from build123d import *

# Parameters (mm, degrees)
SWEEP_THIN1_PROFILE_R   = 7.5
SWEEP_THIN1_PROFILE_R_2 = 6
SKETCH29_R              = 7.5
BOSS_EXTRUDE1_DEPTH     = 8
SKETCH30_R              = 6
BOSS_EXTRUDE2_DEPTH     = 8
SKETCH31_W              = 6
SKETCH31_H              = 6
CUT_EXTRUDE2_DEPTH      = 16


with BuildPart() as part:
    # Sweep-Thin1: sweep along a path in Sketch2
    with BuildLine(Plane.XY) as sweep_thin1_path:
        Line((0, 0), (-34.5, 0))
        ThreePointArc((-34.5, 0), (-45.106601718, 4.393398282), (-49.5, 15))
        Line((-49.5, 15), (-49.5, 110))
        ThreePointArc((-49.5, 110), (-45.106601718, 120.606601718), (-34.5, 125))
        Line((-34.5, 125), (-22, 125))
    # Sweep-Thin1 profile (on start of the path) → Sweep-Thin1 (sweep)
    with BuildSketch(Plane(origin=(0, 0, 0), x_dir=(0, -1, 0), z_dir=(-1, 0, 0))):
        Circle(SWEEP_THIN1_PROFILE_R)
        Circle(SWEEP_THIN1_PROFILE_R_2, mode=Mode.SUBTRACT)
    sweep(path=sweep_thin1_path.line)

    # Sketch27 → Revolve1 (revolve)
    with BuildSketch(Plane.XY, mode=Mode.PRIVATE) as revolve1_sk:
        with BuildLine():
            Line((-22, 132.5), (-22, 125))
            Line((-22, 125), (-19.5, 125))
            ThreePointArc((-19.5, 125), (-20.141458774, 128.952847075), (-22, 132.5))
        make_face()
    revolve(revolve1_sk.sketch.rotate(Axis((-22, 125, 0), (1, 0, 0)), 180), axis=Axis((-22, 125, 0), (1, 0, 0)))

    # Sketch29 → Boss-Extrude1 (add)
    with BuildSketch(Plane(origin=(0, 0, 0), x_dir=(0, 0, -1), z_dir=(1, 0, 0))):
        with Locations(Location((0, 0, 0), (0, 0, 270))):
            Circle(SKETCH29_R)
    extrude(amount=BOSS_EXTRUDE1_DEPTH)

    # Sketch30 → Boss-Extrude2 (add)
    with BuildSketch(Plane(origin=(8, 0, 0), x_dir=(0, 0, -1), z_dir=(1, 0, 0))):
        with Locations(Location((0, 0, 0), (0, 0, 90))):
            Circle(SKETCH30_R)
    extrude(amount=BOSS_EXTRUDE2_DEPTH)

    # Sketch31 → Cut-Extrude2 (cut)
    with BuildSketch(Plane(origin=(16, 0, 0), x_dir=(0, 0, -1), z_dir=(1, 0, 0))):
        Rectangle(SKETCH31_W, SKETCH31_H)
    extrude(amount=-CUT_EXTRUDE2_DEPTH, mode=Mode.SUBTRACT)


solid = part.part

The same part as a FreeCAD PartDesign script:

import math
import FreeCAD as App
import Part
import Sketcher

V = App.Vector

doc = App.newDocument("Part")
body = doc.addObject("PartDesign::Body", "Body")

sketch1 = doc.addObject("Sketcher::SketchObject", "Sketch")
body.addObject(sketch1)
sketch1.AttachmentSupport = (doc.YZ_Plane, [""])
sketch1.MapMode = "FlatFace"
sketch1.addGeometry(Part.Circle(V(0, 0, 0), V(0, 0, 1), 8), False)
sketch1.addGeometry(Part.Circle(V(0, 0, 0), V(0, 0, 1), 6), False)
sketch1.addConstraint(Sketcher.Constraint("Coincident", 0, 3, -1, 1))
sketch1.addConstraint(Sketcher.Constraint("Coincident", 1, 3, -1, 1))
sketch1.addConstraint(Sketcher.Constraint("Diameter", 0, 15.0))
sketch1.addConstraint(Sketcher.Constraint("Diameter", 1, 12.0))

sketch2 = doc.addObject("Sketcher::SketchObject", "Sketch001")
body.addObject(sketch2)
sketch2.AttachmentSupport = (doc.XY_Plane, [""])
sketch2.MapMode = "FlatFace"
sketch2.addGeometry(Part.LineSegment(V(0, 0, 0), V(-34, 0, 0)), False)
sketch2.addGeometry(Part.ArcOfCircle(Part.Circle(V(-35, 15, 0), V(0, 0, 1), 15), math.radians(180), math.radians(270)), False)
sketch2.addGeometry(Part.LineSegment(V(-50, 15, 0), V(-50, 110, 0)), False)
sketch2.addGeometry(Part.ArcOfCircle(Part.Circle(V(-35, 110, 0), V(0, 0, 1), 15), math.radians(90), math.radians(180)), False)
sketch2.addGeometry(Part.LineSegment(V(-34, 125, 0), V(-22, 125, 0)), False)
sketch2.addConstraint(Sketcher.Constraint("Tangent", 0, 2, 1, 2))
sketch2.addConstraint(Sketcher.Constraint("Tangent", 1, 1, 2, 1))
sketch2.addConstraint(Sketcher.Constraint("Tangent", 2, 2, 3, 2))
sketch2.addConstraint(Sketcher.Constraint("Tangent", 3, 1, 4, 1))
sketch2.addConstraint(Sketcher.Constraint("Horizontal", 0))
sketch2.addConstraint(Sketcher.Constraint("Vertical", 2))
sketch2.addConstraint(Sketcher.Constraint("Horizontal", 4))
sketch2.addConstraint(Sketcher.Constraint("Coincident", 0, 1, -1, 1))
sketch2.addConstraint(Sketcher.Constraint("Equal", 1, 3))
sketch2.addConstraint(Sketcher.Constraint("Radius", 1, 15.0))
sketch2.addConstraint(Sketcher.Constraint("DistanceY", 2, 1, 2, 2, 95.0))
sketch2.addConstraint(Sketcher.Constraint("DistanceX", 0, 2, 0, 1, 34.5))
sketch2.addConstraint(Sketcher.Constraint("DistanceX", 4, 1, 4, 2, 12.5))
doc.recompute()

additivepipe = doc.addObject("PartDesign::AdditivePipe", "AdditivePipe")
body.addObject(additivepipe)
additivepipe.Profile = sketch1
additivepipe.Spine = (sketch2, ["Edge1", "Edge2", "Edge3", "Edge4", "Edge5"])

sketch3 = doc.addObject("Sketcher::SketchObject", "Sketch002")
body.addObject(sketch3)
sketch3.AttachmentSupport = (doc.XY_Plane, [""])
sketch3.MapMode = "FlatFace"
sketch3.addGeometry(Part.LineSegment(V(-22, 132.5, 0), V(-22, 125, 0)), False)
sketch3.addGeometry(Part.LineSegment(V(-22, 125, 0), V(-19.5, 125, 0)), False)
sketch3.addGeometry(Part.ArcOfCircle(Part.Circle(V(-32, 125, 0), V(0, 0, 1), 12.5), math.radians(0), math.radians(37)), False)
sketch3.addGeometry(Part.LineSegment(V(-32, 125, 0), V(-19.5, 125, 0)), True)
sketch3.addConstraint(Sketcher.Constraint("Coincident", 0, 2, 1, 1))
sketch3.addConstraint(Sketcher.Constraint("Coincident", 1, 2, 2, 1))
sketch3.addConstraint(Sketcher.Constraint("Coincident", 2, 2, 0, 1))
sketch3.addConstraint(Sketcher.Constraint("Vertical", 0))
sketch3.addConstraint(Sketcher.Constraint("Horizontal", 1))
sketch3.addConstraint(Sketcher.Constraint("Horizontal", 3))
sketch3.addConstraint(Sketcher.Constraint("Coincident", 3, 1, 2, 3))
sketch3.addConstraint(Sketcher.Constraint("Coincident", 3, 2, 1, 2))
sketch3.addConstraint(Sketcher.Constraint("Radius", 2, 12.5))
sketch3.addConstraint(Sketcher.Constraint("DistanceX", 1, 1, 1, 2, 2.5))
sketch3.addConstraint(Sketcher.Constraint("DistanceX", 2, 3, -1, 1, 32.0))
sketch3.addConstraint(Sketcher.Constraint("DistanceY", -1, 1, 2, 3, 125.0))
revolution = doc.addObject("PartDesign::Revolution", "Revolution")
body.addObject(revolution)
revolution.Profile = sketch3
revolution.ReferenceAxis = (sketch3, ["Axis0"])
revolution.Angle = 360

sketch4 = doc.addObject("Sketcher::SketchObject", "Sketch003")
body.addObject(sketch4)
sketch4.AttachmentSupport = (doc.YZ_Plane, [""])
sketch4.MapMode = "FlatFace"
sketch4.addGeometry(Part.Circle(V(0, 0, 0), V(0, 0, 1), 8), False)
sketch4.addConstraint(Sketcher.Constraint("Coincident", 0, 3, -1, 1))
sketch4.addConstraint(Sketcher.Constraint("Diameter", 0, 15.0))
pad1 = doc.addObject("PartDesign::Pad", "Pad")
body.addObject(pad1)
pad1.Profile = sketch4
pad1.Length = 8

sketch5 = doc.addObject("Sketcher::SketchObject", "Sketch004")
body.addObject(sketch5)
sketch5.AttachmentSupport = (doc.YZ_Plane, [""])
sketch5.MapMode = "FlatFace"
sketch5.AttachmentOffset = App.Placement(V(0, 0, 8), App.Rotation())
sketch5.addGeometry(Part.Circle(V(0, 0, 0), V(0, 0, 1), 6), False)
sketch5.addConstraint(Sketcher.Constraint("Coincident", 0, 3, -1, 1))
sketch5.addConstraint(Sketcher.Constraint("Diameter", 0, 12.0))
pad2 = doc.addObject("PartDesign::Pad", "Pad001")
body.addObject(pad2)
pad2.Profile = sketch5
pad2.Length = 8

sketch6 = doc.addObject("Sketcher::SketchObject", "Sketch005")
body.addObject(sketch6)
sketch6.AttachmentSupport = (doc.YZ_Plane, [""])
sketch6.MapMode = "FlatFace"
sketch6.AttachmentOffset = App.Placement(V(0, 0, 16), App.Rotation())
sketch6.addGeometry(Part.LineSegment(V(3, 3, 0), V(-3, 3, 0)), False)
sketch6.addGeometry(Part.LineSegment(V(-3, 3, 0), V(-3, -3, 0)), False)
sketch6.addGeometry(Part.LineSegment(V(-3, -3, 0), V(3, -3, 0)), False)
sketch6.addGeometry(Part.LineSegment(V(3, -3, 0), V(3, 3, 0)), False)
sketch6.addConstraint(Sketcher.Constraint("Coincident", 0, 2, 1, 1))
sketch6.addConstraint(Sketcher.Constraint("Coincident", 1, 2, 2, 1))
sketch6.addConstraint(Sketcher.Constraint("Coincident", 2, 2, 3, 1))
sketch6.addConstraint(Sketcher.Constraint("Coincident", 3, 2, 0, 1))
sketch6.addConstraint(Sketcher.Constraint("Horizontal", 0))
sketch6.addConstraint(Sketcher.Constraint("Vertical", 1))
sketch6.addConstraint(Sketcher.Constraint("Horizontal", 2))
sketch6.addConstraint(Sketcher.Constraint("Vertical", 3))
sketch6.addConstraint(Sketcher.Constraint("Symmetric", 0, 2, 2, 2, -1, 1))
sketch6.addConstraint(Sketcher.Constraint("Equal", 2, 1))
sketch6.addConstraint(Sketcher.Constraint("DistanceX", 0, 2, 0, 1, 6.0))
pocket1 = doc.addObject("PartDesign::Pocket", "Pocket")
body.addObject(pocket1)
pocket1.Profile = sketch6
pocket1.Length = 16

doc.recompute()
